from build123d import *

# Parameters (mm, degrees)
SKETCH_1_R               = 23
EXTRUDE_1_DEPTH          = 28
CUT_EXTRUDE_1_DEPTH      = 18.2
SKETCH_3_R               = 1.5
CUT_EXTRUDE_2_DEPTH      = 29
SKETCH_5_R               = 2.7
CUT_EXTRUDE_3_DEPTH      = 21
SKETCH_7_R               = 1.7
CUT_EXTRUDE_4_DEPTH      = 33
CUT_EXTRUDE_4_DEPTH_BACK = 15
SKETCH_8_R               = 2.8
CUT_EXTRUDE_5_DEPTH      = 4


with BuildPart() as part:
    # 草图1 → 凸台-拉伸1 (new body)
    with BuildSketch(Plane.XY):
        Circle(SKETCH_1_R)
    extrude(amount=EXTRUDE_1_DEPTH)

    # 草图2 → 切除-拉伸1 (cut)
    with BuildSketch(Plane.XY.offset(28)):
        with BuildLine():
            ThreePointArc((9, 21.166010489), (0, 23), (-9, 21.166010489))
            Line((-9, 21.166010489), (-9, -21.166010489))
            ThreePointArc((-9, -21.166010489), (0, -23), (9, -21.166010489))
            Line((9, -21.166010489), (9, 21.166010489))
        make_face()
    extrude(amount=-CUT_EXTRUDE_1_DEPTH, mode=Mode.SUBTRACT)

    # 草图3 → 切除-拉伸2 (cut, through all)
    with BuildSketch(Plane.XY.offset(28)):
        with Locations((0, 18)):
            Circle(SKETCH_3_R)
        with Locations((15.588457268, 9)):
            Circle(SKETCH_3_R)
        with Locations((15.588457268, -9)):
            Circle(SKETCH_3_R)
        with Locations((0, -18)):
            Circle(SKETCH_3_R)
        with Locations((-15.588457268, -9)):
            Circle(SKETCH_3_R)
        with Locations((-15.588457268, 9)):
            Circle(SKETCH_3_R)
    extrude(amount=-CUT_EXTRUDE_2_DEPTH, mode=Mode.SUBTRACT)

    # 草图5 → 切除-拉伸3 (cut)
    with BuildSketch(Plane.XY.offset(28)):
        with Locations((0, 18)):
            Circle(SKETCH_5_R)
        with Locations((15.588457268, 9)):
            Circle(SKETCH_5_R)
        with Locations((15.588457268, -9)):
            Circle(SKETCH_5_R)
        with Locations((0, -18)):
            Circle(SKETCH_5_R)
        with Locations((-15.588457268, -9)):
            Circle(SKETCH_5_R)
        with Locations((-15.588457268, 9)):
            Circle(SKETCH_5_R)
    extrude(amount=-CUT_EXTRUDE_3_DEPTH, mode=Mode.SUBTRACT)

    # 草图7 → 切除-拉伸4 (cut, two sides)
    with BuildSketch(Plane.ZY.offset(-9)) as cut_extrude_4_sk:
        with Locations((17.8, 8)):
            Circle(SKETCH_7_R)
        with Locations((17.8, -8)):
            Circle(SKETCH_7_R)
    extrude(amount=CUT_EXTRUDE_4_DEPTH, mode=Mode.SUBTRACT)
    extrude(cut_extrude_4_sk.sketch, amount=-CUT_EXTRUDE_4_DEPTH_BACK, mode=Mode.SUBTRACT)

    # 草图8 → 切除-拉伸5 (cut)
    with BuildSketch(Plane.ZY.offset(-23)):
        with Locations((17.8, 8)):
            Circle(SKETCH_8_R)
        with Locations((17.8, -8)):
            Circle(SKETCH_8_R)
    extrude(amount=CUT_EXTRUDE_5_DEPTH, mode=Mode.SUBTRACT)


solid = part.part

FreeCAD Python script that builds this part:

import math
import FreeCAD as App
import Part
import Sketcher
Q = App.Units.Quantity

doc = App.newDocument("Part")
params = doc.addObject("Spreadsheet::Sheet", "Params")
for row, (alias, value) in enumerate([
    ("sketch1_diameter", "46 mm"),
    ("pad1_length", "28 mm"),
    ("sketch2_radius", "23 mm"),
    ("pocket1_length", "18.2 mm"),
    ("sketch3_diameter", "3 mm"),
    ("sketch4_diameter", "5.4 mm"),
    ("pocket3_length", "21 mm"),
    ("sketch5_diameter", "3.4 mm"),
    ("sketch6_diameter", "5.6 mm"),
    ("pocket5_length", "4 mm"),
], start=1):
    params.set(f"A{row}", alias)
    params.set(f"B{row}", "=" + value)
    params.setAlias(f"B{row}", alias)

body = doc.addObject("PartDesign::Body", "Body")

# Sketch on XY plane
sketch1 = body.newObject("Sketcher::SketchObject", "Sketch")
sketch1.AttachmentSupport = (doc.getObject("XY_Plane"), [""])
sketch1.MapMode = "FlatFace"
sketch1.addGeometry(Part.Circle(App.Vector(0, 0, 0), App.Vector(0, 0, 1), 23), False)
sketch1.addConstraint(Sketcher.Constraint("Coincident", 0, 3, -1, 1))
sketch1.addConstraint(Sketcher.Constraint("Diameter", 0, Q("46 mm")))
sketch1.setExpression("Constraints[1]", "Params.sketch1_diameter")
pad1 = body.newObject("PartDesign::Pad", "Pad")
pad1.Profile = sketch1
pad1.setExpression("Length", "Params.pad1_length")

# Sketch on XY plane
sketch2 = body.newObject("Sketcher::SketchObject", "Sketch001")
sketch2.AttachmentSupport = (doc.getObject("XY_Plane"), [""])
sketch2.MapMode = "FlatFace"
sketch2.AttachmentOffset = App.Placement(App.Vector(0, 0, 28), App.Rotation())
sketch2.addGeometry(Part.ArcOfCircle(Part.Circle(App.Vector(0, 0, 0), App.Vector(0, 0, 1), 23), math.radians(66.964316), math.radians(113.035684)), False)
sketch2.addGeometry(Part.LineSegment(App.Vector(-9, 21.16601, 0), App.Vector(-9, -21.16601, 0)), False)
sketch2.addGeometry(Part.ArcOfCircle(Part.Circle(App.Vector(0, 0, 0), App.Vector(0, 0, 1), 23), math.radians(-113.035684), math.radians(-66.964316)), False)
sketch2.addGeometry(Part.LineSegment(App.Vector(9, -21.16601, 0), App.Vector(9, 21.16601, 0)), False)
sketch2.addConstraint(Sketcher.Constraint("Coincident", 0, 2, 1, 1))
sketch2.addConstraint(Sketcher.Constraint("Coincident", 1, 2, 2, 1))
sketch2.addConstraint(Sketcher.Constraint("Coincident", 2, 2, 3, 1))
sketch2.addConstraint(Sketcher.Constraint("Coincident", 3, 2, 0, 1))
sketch2.addConstraint(Sketcher.Constraint("Vertical", 1))
sketch2.addConstraint(Sketcher.Constraint("Vertical", 3))
sketch2.addConstraint(Sketcher.Constraint("Coincident", 0, 3, -1, 1))
sketch2.addConstraint(Sketcher.Constraint("Coincident", 2, 3, -1, 1))
sketch2.addConstraint(Sketcher.Constraint("Equal", 0, 2))
sketch2.addConstraint(Sketcher.Constraint("Horizontal", 1, 2, 2, 2))
sketch2.addConstraint(Sketcher.Constraint("Radius", 0, Q("23 mm")))
sketch2.addConstraint(Sketcher.Constraint("DistanceX", 0, 2, -1, 1, Q("9 mm")))
sketch2.setExpression("Constraints[10]", "Params.sketch2_radius")
pocket1 = body.newObject("PartDesign::Pocket", "Pocket")
pocket1.Profile = sketch2
pocket1.setExpression("Length", "Params.pocket1_length")

# Sketch on XY plane
sketch3 = body.newObject("Sketcher::SketchObject", "Sketch002")
sketch3.AttachmentSupport = (doc.getObject("XY_Plane"), [""])
sketch3.MapMode = "FlatFace"
sketch3.AttachmentOffset = App.Placement(App.Vector(0, 0, 28), App.Rotation())
sketch3.addGeometry(Part.Circle(App.Vector(0, 18, 0), App.Vector(0, 0, 1), 1.5), False)
sketch3.addGeometry(Part.Circle(App.Vector(15.588457, 9, 0), App.Vector(0, 0, 1), 1.5), False)
sketch3.addGeometry(Part.Circle(App.Vector(15.588457, -9, 0), App.Vector(0, 0, 1), 1.5), False)
sketch3.addGeometry(Part.Circle(App.Vector(0, -18, 0), App.Vector(0, 0, 1), 1.5), False)
sketch3.addGeometry(Part.Circle(App.Vector(-15.588457, -9, 0), App.Vector(0, 0, 1), 1.5), False)
sketch3.addGeometry(Part.Circle(App.Vector(-15.588457, 9, 0), App.Vector(0, 0, 1), 1.5), False)
sketch3.addConstraint(Sketcher.Constraint("Equal", 0, 1))
sketch3.addConstraint(Sketcher.Constraint("Equal", 1, 2))
sketch3.addConstraint(Sketcher.Constraint("Equal", 2, 3))
sketch3.addConstraint(Sketcher.Constraint("Equal", 3, 4))
sketch3.addConstraint(Sketcher.Constraint("Equal", 4, 5))
sketch3.addConstraint(Sketcher.Constraint("Symmetric", 0, 3, 3, 3, -1, 1))
sketch3.addConstraint(Sketcher.Constraint("Symmetric", 1, 3, 4, 3, -1, 1))
sketch3.addConstraint(Sketcher.Constraint("Symmetric", 2, 3, 5, 3, -1, 1))
sketch3.addConstraint(Sketcher.Constraint("Symmetric", 2, 3, 4, 3, -2))
sketch3.addConstraint(Sketcher.Constraint("PointOnObject", 0, 3, -2))
sketch3.addConstraint(Sketcher.Constraint("Diameter", 0, Q("3 mm")))
sketch3.addConstraint(Sketcher.Constraint("DistanceY", -1, 1, 0, 3, Q("18 mm")))
sketch3.addConstraint(Sketcher.Constraint("DistanceY", -1, 1, 1, 3, Q("9 mm")))
sketch3.addConstraint(Sketcher.Constraint("DistanceX", -1, 1, 1, 3, Q("15.588457 mm")))
sketch3.setExpression("Constraints[10]", "Params.sketch3_diameter")
pocket2 = body.newObject("PartDesign::Pocket", "Pocket001")
pocket2.Profile = sketch3
pocket2.Type = "ThroughAll"

# Sketch on XY plane
sketch4 = body.newObject("Sketcher::SketchObject", "Sketch003")
sketch4.AttachmentSupport = (doc.getObject("XY_Plane"), [""])
sketch4.MapMode = "FlatFace"
sketch4.AttachmentOffset = App.Placement(App.Vector(0, 0, 28), App.Rotation())
sketch4.addGeometry(Part.Circle(App.Vector(0, 18, 0), App.Vector(0, 0, 1), 2.7), False)
sketch4.addGeometry(Part.Circle(App.Vector(15.588457, 9, 0), App.Vector(0, 0, 1), 2.7), False)
sketch4.addGeometry(Part.Circle(App.Vector(15.588457, -9, 0), App.Vector(0, 0, 1), 2.7), False)
sketch4.addGeometry(Part.Circle(App.Vector(0, -18, 0), App.Vector(0, 0, 1), 2.7), False)
sketch4.addGeometry(Part.Circle(App.Vector(-15.588457, -9, 0), App.Vector(0, 0, 1), 2.7), False)
sketch4.addGeometry(Part.Circle(App.Vector(-15.588457, 9, 0), App.Vector(0, 0, 1), 2.7), False)
sketch4.addConstraint(Sketcher.Constraint("Equal", 0, 1))
sketch4.addConstraint(Sketcher.Constraint("Equal", 1, 2))
sketch4.addConstraint(Sketcher.Constraint("Equal", 2, 3))
sketch4.addConstraint(Sketcher.Constraint("Equal", 3, 4))
sketch4.addConstraint(Sketcher.Constraint("Equal", 4, 5))
sketch4.addConstraint(Sketcher.Constraint("Symmetric", 0, 3, 3, 3, -1, 1))
sketch4.addConstraint(Sketcher.Constraint("Symmetric", 1, 3, 4, 3, -1, 1))
sketch4.addConstraint(Sketcher.Constraint("Symmetric", 2, 3, 5, 3, -1, 1))
sketch4.addConstraint(Sketcher.Constraint("Symmetric", 2, 3, 4, 3, -2))
sketch4.addConstraint(Sketcher.Constraint("PointOnObject", 0, 3, -2))
sketch4.addConstraint(Sketcher.Constraint("Diameter", 0, Q("5.4 mm")))
sketch4.addConstraint(Sketcher.Constraint("DistanceY", -1, 1, 0, 3, Q("18 mm")))
sketch4.addConstraint(Sketcher.Constraint("DistanceY", -1, 1, 1, 3, Q("9 mm")))
sketch4.addConstraint(Sketcher.Constraint("DistanceX", -1, 1, 1, 3, Q("15.588457 mm")))
sketch4.setExpression("Constraints[10]", "Params.sketch4_diameter")
pocket3 = body.newObject("PartDesign::Pocket", "Pocket002")
pocket3.Profile = sketch4
pocket3.setExpression("Length", "Params.pocket3_length")

# Sketch on YZ plane
sketch5 = body.newObject("Sketcher::SketchObject", "Sketch004")
sketch5.AttachmentSupport = (doc.getObject("YZ_Plane"), [""])
sketch5.MapMode = "FlatFace"
sketch5.AttachmentOffset = App.Placement(App.Vector(0, 0, 9), App.Rotation())
sketch5.addGeometry(Part.Circle(App.Vector(8, 17.8, 0), App.Vector(0, 0, 1), 1.7), False)
sketch5.addGeometry(Part.Circle(App.Vector(-8, 17.8, 0), App.Vector(0, 0, 1), 1.7), False)
sketch5.addConstraint(Sketcher.Constraint("Equal", 0, 1))
sketch5.addConstraint(Sketcher.Constraint("Symmetric", 0, 3, 1, 3, -2))
sketch5.addConstraint(Sketcher.Constraint("Diameter", 0, Q("3.4 mm")))
sketch5.addConstraint(Sketcher.Constraint("DistanceX", -1, 1, 0, 3, Q("8 mm")))
sketch5.addConstraint(Sketcher.Constraint("DistanceY", -1, 1, 0, 3, Q("17.8 mm")))
sketch5.setExpression("Constraints[2]", "Params.sketch5_diameter")
pocket4 = body.newObject("PartDesign::Pocket", "Pocket003")
pocket4.Profile = sketch5
pocket4.Type = "ThroughAll"
pocket4.Midplane = True

# Sketch on YZ plane
sketch6 = body.newObject("Sketcher::SketchObject", "Sketch005")
sketch6.AttachmentSupport = (doc.getObject("YZ_Plane"), [""])
sketch6.MapMode = "FlatFace"
sketch6.AttachmentOffset = App.Placement(App.Vector(0, 0, 23), App.Rotation())
sketch6.addGeometry(Part.Circle(App.Vector(8, 17.8, 0), App.Vector(0, 0, 1), 2.8), False)
sketch6.addGeometry(Part.Circle(App.Vector(-8, 17.8, 0), App.Vector(0, 0, 1), 2.8), False)
sketch6.addConstraint(Sketcher.Constraint("Equal", 0, 1))
sketch6.addConstraint(Sketcher.Constraint("Symmetric", 0, 3, 1, 3, -2))
sketch6.addConstraint(Sketcher.Constraint("Diameter", 0, Q("5.6 mm")))
sketch6.addConstraint(Sketcher.Constraint("DistanceX", -1, 1, 0, 3, Q("8 mm")))
sketch6.addConstraint(Sketcher.Constraint("DistanceY", -1, 1, 0, 3, Q("17.8 mm")))
sketch6.setExpression("Constraints[2]", "Params.sketch6_diameter")
pocket5 = body.newObject("PartDesign::Pocket", "Pocket004")
pocket5.Profile = sketch6
pocket5.setExpression("Length", "Params.pocket5_length")

doc.recompute()
